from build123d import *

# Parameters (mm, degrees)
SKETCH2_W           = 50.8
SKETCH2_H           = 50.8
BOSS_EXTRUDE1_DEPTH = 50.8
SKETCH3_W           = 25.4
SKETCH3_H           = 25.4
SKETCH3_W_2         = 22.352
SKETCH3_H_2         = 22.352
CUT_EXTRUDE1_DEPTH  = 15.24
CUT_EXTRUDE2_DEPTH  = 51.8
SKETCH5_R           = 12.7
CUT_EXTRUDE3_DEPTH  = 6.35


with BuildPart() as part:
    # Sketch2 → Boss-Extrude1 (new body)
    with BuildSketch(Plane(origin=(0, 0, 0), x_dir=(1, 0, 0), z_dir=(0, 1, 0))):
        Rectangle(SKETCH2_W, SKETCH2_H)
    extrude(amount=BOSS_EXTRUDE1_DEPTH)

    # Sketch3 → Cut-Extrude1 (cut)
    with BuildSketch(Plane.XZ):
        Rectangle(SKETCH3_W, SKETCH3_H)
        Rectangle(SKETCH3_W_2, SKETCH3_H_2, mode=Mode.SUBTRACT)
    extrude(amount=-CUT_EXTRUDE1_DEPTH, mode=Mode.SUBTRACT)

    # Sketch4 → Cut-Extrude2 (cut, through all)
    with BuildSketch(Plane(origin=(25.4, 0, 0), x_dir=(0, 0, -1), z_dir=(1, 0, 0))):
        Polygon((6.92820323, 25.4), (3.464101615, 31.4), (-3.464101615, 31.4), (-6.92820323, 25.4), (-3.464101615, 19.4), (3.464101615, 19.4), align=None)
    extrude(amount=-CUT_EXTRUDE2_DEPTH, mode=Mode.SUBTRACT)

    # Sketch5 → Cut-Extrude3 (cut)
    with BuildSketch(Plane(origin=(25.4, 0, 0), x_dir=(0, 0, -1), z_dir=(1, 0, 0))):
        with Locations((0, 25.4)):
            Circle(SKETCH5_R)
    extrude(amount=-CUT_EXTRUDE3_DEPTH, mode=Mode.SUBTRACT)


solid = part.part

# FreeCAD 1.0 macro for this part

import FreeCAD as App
import Part
import Sketcher
Q = App.Units.Quantity

doc = App.newDocument("Part")
body = doc.addObject("PartDesign::Body", "Body")

# Sketch on XZ plane
sketch1 = body.newObject("Sketcher::SketchObject", "Sketch")
sketch1.AttachmentSupport = (doc.getObject("XZ_Plane"), [""])
sketch1.MapMode = "FlatFace"
sketch1.addGeometry(Part.LineSegment(App.Vector(-25, -25, 0), App.Vector(-25, 25, 0)), False)
sketch1.addGeometry(Part.LineSegment(App.Vector(-25, 25, 0), App.Vector(25, 25, 0)), False)
sketch1.addGeometry(Part.LineSegment(App.Vector(25, 25, 0), App.Vector(25, -25, 0)), False)
sketch1.addGeometry(Part.LineSegment(App.Vector(25, -25, 0), App.Vector(-25, -25, 0)), False)
sketch1.addConstraint(Sketcher.Constraint("Coincident", 0, 2, 1, 1))
sketch1.addConstraint(Sketcher.Constraint("Coincident", 1, 2, 2, 1))
sketch1.addConstraint(Sketcher.Constraint("Coincident", 2, 2, 3, 1))
sketch1.addConstraint(Sketcher.Constraint("Coincident", 3, 2, 0, 1))
sketch1.addConstraint(Sketcher.Constraint("Vertical", 0))
sketch1.addConstraint(Sketcher.Constraint("Horizontal", 1))
sketch1.addConstraint(Sketcher.Constraint("Vertical", 2))
sketch1.addConstraint(Sketcher.Constraint("Horizontal", 3))
sketch1.addConstraint(Sketcher.Constraint("Symmetric", 0, 2, 2, 2, -1, 1))
sketch1.addConstraint(Sketcher.Constraint("Equal", 3, 0))
sketch1.addConstraint(Sketcher.Constraint("DistanceX", 1, 1, 1, 2, Q("2 in")))
pad1 = body.newObject("PartDesign::Pad", "Pad")
pad1.Profile = sketch1
pad1.Length = Q("2 in")
pad1.Reversed = True

# Sketch on XZ plane
sketch2 = body.newObject("Sketcher::SketchObject", "Sketch001")
sketch2.AttachmentSupport = (doc.getObject("XZ_Plane"), [""])
sketch2.MapMode = "FlatFace"
sketch2.addGeometry(Part.LineSegment(App.Vector(-13, 13, 0), App.Vector(-13, -13, 0)), False)
sketch2.addGeometry(Part.LineSegment(App.Vector(-13, -13, 0), App.Vector(13, -13, 0)), False)
sketch2.addGeometry(Part.LineSegment(App.Vector(13, -13, 0), App.Vector(13, 13, 0)), False)
sketch2.addGeometry(Part.LineSegment(App.Vector(13, 13, 0), App.Vector(-13, 13, 0)), False)
sketch2.addGeometry(Part.LineSegment(App.Vector(11, -11, 0), App.Vector(-11, -11, 0)), False)
sketch2.addGeometry(Part.LineSegment(App.Vector(-11, -11, 0), App.Vector(-11, 11, 0)), False)
sketch2.addGeometry(Part.LineSegment(App.Vector(-11, 11, 0), App.Vector(11, 11, 0)), False)
sketch2.addGeometry(Part.LineSegment(App.Vector(11, 11, 0), App.Vector(11, -11, 0)), False)
sketch2.addConstraint(Sketcher.Constraint("Coincident", 0, 2, 1, 1))
sketch2.addConstraint(Sketcher.Constraint("Coincident", 1, 2, 2, 1))
sketch2.addConstraint(Sketcher.Constraint("Coincident", 2, 2, 3, 1))
sketch2.addConstraint(Sketcher.Constraint("Coincident", 3, 2, 0, 1))
sketch2.addConstraint(Sketcher.Constraint("Coincident", 4, 2, 5, 1))
sketch2.addConstraint(Sketcher.Constraint("Coincident", 5, 2, 6, 1))
sketch2.addConstraint(Sketcher.Constraint("Coincident", 6, 2, 7, 1))
sketch2.addConstraint(Sketcher.Constraint("Coincident", 7, 2, 4, 1))
sketch2.addConstraint(Sketcher.Constraint("Vertical", 0))
sketch2.addConstraint(Sketcher.Constraint("Horizontal", 1))
sketch2.addConstraint(Sketcher.Constraint("Vertical", 2))
sketch2.addConstraint(Sketcher.Constraint("Horizontal", 3))
sketch2.addConstraint(Sketcher.Constraint("Horizontal", 4))
sketch2.addConstraint(Sketcher.Constraint("Vertical", 5))
sketch2.addConstraint(Sketcher.Constraint("Horizontal", 6))
sketch2.addConstraint(Sketcher.Constraint("Vertical", 7))
sketch2.addConstraint(Sketcher.Constraint("Symmetric", 0, 2, 2, 2, -1, 1))
sketch2.addConstraint(Sketcher.Constraint("Symmetric", 4, 2, 6, 2, -1, 1))
sketch2.addConstraint(Sketcher.Constraint("Equal", 3, 0))
sketch2.addConstraint(Sketcher.Constraint("Equal", 6, 5))
sketch2.addConstraint(Sketcher.Constraint("DistanceX", 1, 1, 1, 2, Q("1 in")))
sketch2.addConstraint(Sketcher.Constraint("DistanceX", 4, 2, 4, 1, Q("0.88 in")))
pocket1 = body.newObject("PartDesign::Pocket", "Pocket")
pocket1.Profile = sketch2
pocket1.Length = Q("0.6 in")

# Sketch on YZ plane
sketch3 = body.newObject("Sketcher::SketchObject", "Sketch002")
sketch3.AttachmentSupport = (doc.getObject("YZ_Plane"), [""])
sketch3.MapMode = "FlatFace"
sketch3.AttachmentOffset = App.Placement(App.Vector(0, 0, 1 * 25.4), App.Rotation())
sketch3.addGeometry(Part.LineSegment(App.Vector(25, -7, 0), App.Vector(31, -3, 0)), False)
sketch3.addGeometry(Part.LineSegment(App.Vector(31, -3, 0), App.Vector(31, 3, 0)), False)
sketch3.addGeometry(Part.LineSegment(App.Vector(31, 3, 0), App.Vector(25, 7, 0)), False)
sketch3.addGeometry(Part.LineSegment(App.Vector(25, 7, 0), App.Vector(19, 3, 0)), False)
sketch3.addGeometry(Part.LineSegment(App.Vector(19, 3, 0), App.Vector(19, -3, 0)), False)
sketch3.addGeometry(Part.LineSegment(App.Vector(19, -3, 0), App.Vector(25, -7, 0)), False)
sketch3.addConstraint(Sketcher.Constraint("Coincident", 0, 2, 1, 1))
sketch3.addConstraint(Sketcher.Constraint("Coincident", 1, 2, 2, 1))
sketch3.addConstraint(Sketcher.Constraint("Coincident", 2, 2, 3, 1))
sketch3.addConstraint(Sketcher.Constraint("Coincident", 3, 2, 4, 1))
sketch3.addConstraint(Sketcher.Constraint("Coincident", 4, 2, 5, 1))
sketch3.addConstraint(Sketcher.Constraint("Coincident", 5, 2, 0, 1))
sketch3.addConstraint(Sketcher.Constraint("Vertical", 1))
sketch3.addConstraint(Sketcher.Constraint("Vertical", 4))
sketch3.addConstraint(Sketcher.Constraint("Symmetric", 2, 2, 5, 2, -1))
sketch3.addConstraint(Sketcher.Constraint("Parallel", 0, 3))
sketch3.addConstraint(Sketcher.Constraint("Parallel", 2, 5))
sketch3.addConstraint(Sketcher.Constraint("Horizontal", 1, 2, 3, 2))
sketch3.addConstraint(Sketcher.Constraint("Horizontal", 0, 2, 4, 2))
sketch3.addConstraint(Sketcher.Constraint("DistanceX", -1, 1, 2, 2, Q("1 in")))
sketch3.addConstraint(Sketcher.Constraint("Angle", 0, Q("30 deg")))
sketch3.addConstraint(Sketcher.Constraint("DistanceX", -1, 1, 0, 2, Q("31.4 mm")))
sketch3.addConstraint(Sketcher.Constraint("DistanceY", 0, 2, -1, 1, Q("3.464102 mm")))
pocket2 = body.newObject("PartDesign::Pocket", "Pocket001")
pocket2.Profile = sketch3
pocket2.Type = "ThroughAll"

# Sketch on YZ plane
sketch4 = body.newObject("Sketcher::SketchObject", "Sketch003")
sketch4.AttachmentSupport = (doc.getObject("YZ_Plane"), [""])
sketch4.MapMode = "FlatFace"
sketch4.AttachmentOffset = App.Placement(App.Vector(0, 0, 1 * 25.4), App.Rotation())
sketch4.addGeometry(Part.Circle(App.Vector(25, 0, 0), App.Vector(0, 0, 1), 13), False)
sketch4.addConstraint(Sketcher.Constraint("PointOnObject", 0, 3, -1))
sketch4.addConstraint(Sketcher.Constraint("Diameter", 0, Q("1 in")))
sketch4.addConstraint(Sketcher.Constraint("DistanceX", -1, 1, 0, 3, Q("1 in")))
pocket3 = body.newObject("PartDesign::Pocket", "Pocket002")
pocket3.Profile = sketch4
pocket3.Length = Q("0.25 in")

doc.recompute()
